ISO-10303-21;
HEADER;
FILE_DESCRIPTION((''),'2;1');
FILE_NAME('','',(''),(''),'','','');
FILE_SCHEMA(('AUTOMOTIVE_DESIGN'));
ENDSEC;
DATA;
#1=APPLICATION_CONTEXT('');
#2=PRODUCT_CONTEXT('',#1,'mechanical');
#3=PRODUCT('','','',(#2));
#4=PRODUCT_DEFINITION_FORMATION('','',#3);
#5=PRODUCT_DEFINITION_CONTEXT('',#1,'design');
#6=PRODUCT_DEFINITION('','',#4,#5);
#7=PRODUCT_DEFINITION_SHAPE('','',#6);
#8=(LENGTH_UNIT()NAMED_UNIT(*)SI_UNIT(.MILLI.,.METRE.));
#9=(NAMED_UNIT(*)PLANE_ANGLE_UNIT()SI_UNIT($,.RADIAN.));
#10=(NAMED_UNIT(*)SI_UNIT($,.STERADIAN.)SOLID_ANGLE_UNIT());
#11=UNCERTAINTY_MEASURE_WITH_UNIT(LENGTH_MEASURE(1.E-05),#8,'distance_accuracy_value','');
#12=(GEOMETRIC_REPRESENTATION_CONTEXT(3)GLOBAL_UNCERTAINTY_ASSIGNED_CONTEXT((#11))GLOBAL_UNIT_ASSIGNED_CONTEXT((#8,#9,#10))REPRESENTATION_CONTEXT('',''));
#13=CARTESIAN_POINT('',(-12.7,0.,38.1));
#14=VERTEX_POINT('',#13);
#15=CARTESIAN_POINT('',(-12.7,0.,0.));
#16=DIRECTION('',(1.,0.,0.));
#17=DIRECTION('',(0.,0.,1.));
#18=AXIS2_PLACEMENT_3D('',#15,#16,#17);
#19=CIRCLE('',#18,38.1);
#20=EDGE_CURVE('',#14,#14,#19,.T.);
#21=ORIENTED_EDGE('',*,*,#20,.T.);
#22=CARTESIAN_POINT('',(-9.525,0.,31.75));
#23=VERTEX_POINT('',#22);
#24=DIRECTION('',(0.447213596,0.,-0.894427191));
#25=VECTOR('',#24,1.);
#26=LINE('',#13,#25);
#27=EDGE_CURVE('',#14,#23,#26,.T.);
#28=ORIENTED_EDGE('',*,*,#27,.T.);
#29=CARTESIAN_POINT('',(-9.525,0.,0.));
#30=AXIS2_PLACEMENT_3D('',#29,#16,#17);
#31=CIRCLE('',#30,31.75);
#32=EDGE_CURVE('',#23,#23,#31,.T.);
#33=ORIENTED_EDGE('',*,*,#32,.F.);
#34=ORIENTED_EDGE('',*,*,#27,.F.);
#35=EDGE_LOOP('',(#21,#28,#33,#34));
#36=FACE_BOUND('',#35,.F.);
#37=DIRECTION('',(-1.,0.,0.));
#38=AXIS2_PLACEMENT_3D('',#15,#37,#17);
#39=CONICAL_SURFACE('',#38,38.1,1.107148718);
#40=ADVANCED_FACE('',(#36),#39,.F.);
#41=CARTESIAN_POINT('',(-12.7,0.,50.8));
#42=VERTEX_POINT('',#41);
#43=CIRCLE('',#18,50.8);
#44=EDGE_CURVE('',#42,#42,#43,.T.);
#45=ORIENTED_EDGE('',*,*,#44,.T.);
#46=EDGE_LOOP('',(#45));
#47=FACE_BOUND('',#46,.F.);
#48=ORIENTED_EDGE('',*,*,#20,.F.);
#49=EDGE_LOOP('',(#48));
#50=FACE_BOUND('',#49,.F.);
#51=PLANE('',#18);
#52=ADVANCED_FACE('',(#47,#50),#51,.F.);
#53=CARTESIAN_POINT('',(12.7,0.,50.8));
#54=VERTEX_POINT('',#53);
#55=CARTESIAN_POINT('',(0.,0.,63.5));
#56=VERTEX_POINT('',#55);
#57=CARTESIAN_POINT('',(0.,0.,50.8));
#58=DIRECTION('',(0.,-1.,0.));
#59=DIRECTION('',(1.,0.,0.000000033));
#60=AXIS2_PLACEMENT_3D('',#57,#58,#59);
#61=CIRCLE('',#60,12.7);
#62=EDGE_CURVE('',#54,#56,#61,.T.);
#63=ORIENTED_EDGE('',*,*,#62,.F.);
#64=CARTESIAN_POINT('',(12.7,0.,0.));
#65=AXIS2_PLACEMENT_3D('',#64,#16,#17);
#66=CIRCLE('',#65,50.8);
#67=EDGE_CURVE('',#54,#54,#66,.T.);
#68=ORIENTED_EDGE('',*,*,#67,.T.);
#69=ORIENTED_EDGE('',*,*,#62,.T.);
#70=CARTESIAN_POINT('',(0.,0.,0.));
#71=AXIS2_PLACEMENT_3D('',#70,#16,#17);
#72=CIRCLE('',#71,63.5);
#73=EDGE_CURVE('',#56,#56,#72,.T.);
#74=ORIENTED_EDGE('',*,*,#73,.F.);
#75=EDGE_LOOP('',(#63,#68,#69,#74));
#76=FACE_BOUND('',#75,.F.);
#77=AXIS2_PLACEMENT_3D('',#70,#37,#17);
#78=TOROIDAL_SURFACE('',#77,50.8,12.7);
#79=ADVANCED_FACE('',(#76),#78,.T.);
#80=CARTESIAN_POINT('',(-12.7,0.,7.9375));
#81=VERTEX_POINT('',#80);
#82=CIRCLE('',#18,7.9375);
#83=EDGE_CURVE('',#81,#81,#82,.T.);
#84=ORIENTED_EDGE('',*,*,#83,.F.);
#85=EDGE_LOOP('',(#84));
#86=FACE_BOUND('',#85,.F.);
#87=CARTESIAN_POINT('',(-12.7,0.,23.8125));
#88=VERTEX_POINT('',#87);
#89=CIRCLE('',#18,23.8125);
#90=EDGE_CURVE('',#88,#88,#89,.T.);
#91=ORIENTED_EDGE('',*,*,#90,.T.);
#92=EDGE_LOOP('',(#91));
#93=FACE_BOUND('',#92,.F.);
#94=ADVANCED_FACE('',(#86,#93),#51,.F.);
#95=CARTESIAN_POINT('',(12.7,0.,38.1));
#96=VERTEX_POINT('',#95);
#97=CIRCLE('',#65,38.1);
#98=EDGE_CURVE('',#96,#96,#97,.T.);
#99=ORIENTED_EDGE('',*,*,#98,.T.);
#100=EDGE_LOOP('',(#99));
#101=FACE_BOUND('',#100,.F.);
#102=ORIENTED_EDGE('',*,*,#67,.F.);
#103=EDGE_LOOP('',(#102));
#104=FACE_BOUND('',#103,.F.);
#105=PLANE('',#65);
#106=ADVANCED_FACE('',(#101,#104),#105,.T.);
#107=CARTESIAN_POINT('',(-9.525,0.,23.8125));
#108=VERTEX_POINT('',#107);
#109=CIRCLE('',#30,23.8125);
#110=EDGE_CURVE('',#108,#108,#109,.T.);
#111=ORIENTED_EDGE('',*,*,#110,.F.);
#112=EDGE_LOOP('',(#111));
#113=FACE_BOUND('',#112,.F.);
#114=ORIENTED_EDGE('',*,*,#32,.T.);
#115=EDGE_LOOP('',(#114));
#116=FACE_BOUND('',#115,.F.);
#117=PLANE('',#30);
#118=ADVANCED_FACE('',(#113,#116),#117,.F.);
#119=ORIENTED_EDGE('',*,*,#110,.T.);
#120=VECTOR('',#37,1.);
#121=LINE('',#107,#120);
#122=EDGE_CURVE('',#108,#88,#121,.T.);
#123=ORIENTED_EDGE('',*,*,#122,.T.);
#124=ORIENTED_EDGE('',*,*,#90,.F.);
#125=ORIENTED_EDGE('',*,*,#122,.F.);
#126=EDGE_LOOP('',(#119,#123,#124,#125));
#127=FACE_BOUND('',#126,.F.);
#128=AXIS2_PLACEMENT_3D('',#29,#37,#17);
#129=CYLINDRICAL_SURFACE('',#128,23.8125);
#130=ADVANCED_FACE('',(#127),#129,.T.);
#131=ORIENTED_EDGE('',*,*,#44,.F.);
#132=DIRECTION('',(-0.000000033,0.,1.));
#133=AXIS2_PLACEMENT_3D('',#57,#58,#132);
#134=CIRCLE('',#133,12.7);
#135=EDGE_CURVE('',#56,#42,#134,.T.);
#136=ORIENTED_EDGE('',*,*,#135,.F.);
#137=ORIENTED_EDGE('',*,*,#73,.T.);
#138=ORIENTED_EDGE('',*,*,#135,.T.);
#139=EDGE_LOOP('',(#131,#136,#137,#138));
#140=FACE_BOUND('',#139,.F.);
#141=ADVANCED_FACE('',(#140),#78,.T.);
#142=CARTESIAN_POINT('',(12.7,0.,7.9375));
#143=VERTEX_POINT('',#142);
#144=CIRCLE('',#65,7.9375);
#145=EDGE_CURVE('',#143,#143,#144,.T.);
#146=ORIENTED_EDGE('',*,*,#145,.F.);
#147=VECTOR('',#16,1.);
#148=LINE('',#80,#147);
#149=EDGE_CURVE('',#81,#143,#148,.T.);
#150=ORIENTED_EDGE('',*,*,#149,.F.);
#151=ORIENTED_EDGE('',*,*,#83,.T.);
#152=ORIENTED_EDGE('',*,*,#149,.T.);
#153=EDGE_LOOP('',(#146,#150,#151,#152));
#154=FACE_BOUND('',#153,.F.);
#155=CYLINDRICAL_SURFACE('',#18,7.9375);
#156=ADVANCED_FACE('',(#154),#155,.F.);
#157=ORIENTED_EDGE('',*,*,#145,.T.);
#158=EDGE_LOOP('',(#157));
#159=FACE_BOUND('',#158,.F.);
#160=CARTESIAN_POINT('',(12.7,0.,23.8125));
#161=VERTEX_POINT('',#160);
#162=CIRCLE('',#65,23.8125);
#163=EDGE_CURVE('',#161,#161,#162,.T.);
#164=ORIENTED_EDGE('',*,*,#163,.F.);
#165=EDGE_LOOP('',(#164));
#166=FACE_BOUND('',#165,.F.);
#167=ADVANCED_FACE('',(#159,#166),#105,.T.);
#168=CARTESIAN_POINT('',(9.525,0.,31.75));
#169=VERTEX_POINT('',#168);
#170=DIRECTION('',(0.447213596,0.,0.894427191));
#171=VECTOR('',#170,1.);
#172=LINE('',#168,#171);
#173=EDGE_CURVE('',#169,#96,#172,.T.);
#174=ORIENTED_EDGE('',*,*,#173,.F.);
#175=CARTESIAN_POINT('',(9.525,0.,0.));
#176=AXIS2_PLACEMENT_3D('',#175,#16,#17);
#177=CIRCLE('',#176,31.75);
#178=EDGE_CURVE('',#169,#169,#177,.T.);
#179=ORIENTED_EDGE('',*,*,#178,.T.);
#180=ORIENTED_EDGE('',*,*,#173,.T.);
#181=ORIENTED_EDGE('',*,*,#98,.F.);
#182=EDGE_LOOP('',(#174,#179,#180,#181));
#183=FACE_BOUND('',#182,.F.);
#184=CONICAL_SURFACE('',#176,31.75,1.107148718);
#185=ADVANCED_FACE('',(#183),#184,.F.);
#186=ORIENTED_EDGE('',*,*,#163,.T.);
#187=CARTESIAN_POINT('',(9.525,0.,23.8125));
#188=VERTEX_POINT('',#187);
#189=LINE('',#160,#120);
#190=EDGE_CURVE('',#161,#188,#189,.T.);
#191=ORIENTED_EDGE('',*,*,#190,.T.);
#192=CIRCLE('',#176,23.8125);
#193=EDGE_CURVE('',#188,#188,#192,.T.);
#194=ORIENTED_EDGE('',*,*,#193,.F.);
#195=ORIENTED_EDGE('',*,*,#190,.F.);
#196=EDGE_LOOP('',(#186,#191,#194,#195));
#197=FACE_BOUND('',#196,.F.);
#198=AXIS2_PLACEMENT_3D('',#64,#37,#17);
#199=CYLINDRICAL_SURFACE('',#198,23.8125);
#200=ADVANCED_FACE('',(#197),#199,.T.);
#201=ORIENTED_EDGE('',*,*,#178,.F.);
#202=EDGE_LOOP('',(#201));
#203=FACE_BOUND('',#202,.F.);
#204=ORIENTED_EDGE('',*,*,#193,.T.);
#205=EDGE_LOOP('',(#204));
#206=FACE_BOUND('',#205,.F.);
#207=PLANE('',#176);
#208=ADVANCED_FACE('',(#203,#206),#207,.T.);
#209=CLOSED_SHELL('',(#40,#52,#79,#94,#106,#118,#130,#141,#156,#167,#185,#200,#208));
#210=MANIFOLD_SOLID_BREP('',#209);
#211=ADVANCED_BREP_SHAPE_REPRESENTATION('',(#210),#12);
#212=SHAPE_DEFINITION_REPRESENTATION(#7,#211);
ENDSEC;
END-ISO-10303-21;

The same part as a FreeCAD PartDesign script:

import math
import FreeCAD as App
import Part
import Sketcher
Q = App.Units.Quantity

doc = App.newDocument("Part")
params = doc.addObject("Spreadsheet::Sheet", "Params")
for row, (alias, value) in enumerate([
    ("sketch1_radius", "0.5 in"),
    ("sketch1_height", "0.5 in"),
    ("sketch1_width", "0.125 in"),
    ("sketch1_height2", "0.625 in"),
    ("sketch1_height3", "0.3125 in"),
    ("revolution_angle", "360 deg"),
], start=1):
    params.set(f"A{row}", alias)
    params.set(f"B{row}", "=" + value)
    params.setAlias(f"B{row}", alias)

body = doc.addObject("PartDesign::Body", "Body")

# Sketch on XZ plane
sketch1 = body.newObject("Sketcher::SketchObject", "Sketch")
sketch1.AttachmentSupport = (doc.getObject("XZ_Plane"), [""])
sketch1.MapMode = "FlatFace"
sketch1.addGeometry([
    Part.LineSegment(App.Vector(-12.7, 7.9, 0), App.Vector(12.7, 7.9, 0)),  # 0
    Part.LineSegment(App.Vector(12.7, 7.9, 0), App.Vector(12.7, 23.8, 0)),  # 1
    Part.LineSegment(App.Vector(12.7, 23.8, 0), App.Vector(9.5, 23.8, 0)),  # 2
    Part.LineSegment(App.Vector(9.5, 23.8, 0), App.Vector(9.5, 31.8, 0)),  # 3
    Part.LineSegment(App.Vector(9.5, 31.8, 0), App.Vector(12.7, 38.1, 0)),  # 4
    Part.LineSegment(App.Vector(12.7, 38.1, 0), App.Vector(12.7, 50.8, 0)),  # 5
    Part.ArcOfCircle(Part.Circle(App.Vector(0, 50.8, 0), App.Vector(0, 0, 1), 12.7), math.radians(0), math.radians(90)),  # 6
    Part.ArcOfCircle(Part.Circle(App.Vector(0, 50.8, 0), App.Vector(0, 0, 1), 12.7), math.radians(90), math.radians(180)),  # 7
    Part.LineSegment(App.Vector(-12.7, 50.8, 0), App.Vector(-12.7, 38.1, 0)),  # 8
    Part.LineSegment(App.Vector(-12.7, 38.1, 0), App.Vector(-9.5, 31.8, 0)),  # 9
    Part.LineSegment(App.Vector(-9.5, 31.8, 0), App.Vector(-9.5, 23.8, 0)),  # 10
    Part.LineSegment(App.Vector(-9.5, 23.8, 0), App.Vector(-12.7, 23.8, 0)),  # 11
    Part.LineSegment(App.Vector(-12.7, 23.8, 0), App.Vector(-12.7, 7.9, 0)),  # 12
], False)
sketch1.addConstraint([
    Sketcher.Constraint("Coincident", 0, 2, 1, 1),
    Sketcher.Constraint("Coincident", 1, 2, 2, 1),
    Sketcher.Constraint("Coincident", 2, 2, 3, 1),
    Sketcher.Constraint("Coincident", 3, 2, 4, 1),
    Sketcher.Constraint("Coincident", 4, 2, 5, 1),
    Sketcher.Constraint("Tangent", 5, 2, 6, 1),
    Sketcher.Constraint("Tangent", 6, 2, 7, 1),
    Sketcher.Constraint("Tangent", 7, 2, 8, 1),
    Sketcher.Constraint("Coincident", 8, 2, 9, 1),
    Sketcher.Constraint("Coincident", 9, 2, 10, 1),
    Sketcher.Constraint("Coincident", 10, 2, 11, 1),
    Sketcher.Constraint("Coincident", 11, 2, 12, 1),
    Sketcher.Constraint("Coincident", 12, 2, 0, 1),
    Sketcher.Constraint("Horizontal", 0),
    Sketcher.Constraint("Vertical", 1),
    Sketcher.Constraint("Horizontal", 2),
    Sketcher.Constraint("Vertical", 3),
    Sketcher.Constraint("Vertical", 5),
    Sketcher.Constraint("Vertical", 8),
    Sketcher.Constraint("Vertical", 10),
    Sketcher.Constraint("Horizontal", 11),
    Sketcher.Constraint("Vertical", 12),
    Sketcher.Constraint("Equal", 6, 7),
    Sketcher.Constraint("Symmetric", 4, 2, 8, 2, -2),
    Sketcher.Constraint("Symmetric", 3, 2, 9, 2, -2),
    Sketcher.Constraint("Symmetric", 1, 2, 11, 2, -2),
    Sketcher.Constraint("PointOnObject", 6, 2, -2),
    Sketcher.Constraint("Vertical", 1, 2, 4, 2),
    Sketcher.Constraint("Radius", 6, Q("0.5 in")),
    Sketcher.Constraint("DistanceY", 5, 1, 5, 2, Q("0.5 in")),
    Sketcher.Constraint("DistanceY", -1, 1, 6, 3, Q("2 in")),
    Sketcher.Constraint("DistanceX", 2, 2, 2, 1, Q("0.125 in")),
    Sketcher.Constraint("DistanceY", 1, 1, 1, 2, Q("0.625 in")),
    Sketcher.Constraint("DistanceY", 3, 1, 3, 2, Q("0.3125 in")),
    Sketcher.Constraint("DistanceY", -1, 1, 3, 2, Q("1.25 in")),
])
sketch1.setExpression("Constraints[28]", "Params.sketch1_radius")
sketch1.setExpression("Constraints[29]", "Params.sketch1_height")
sketch1.setExpression("Constraints[31]", "Params.sketch1_width")
sketch1.setExpression("Constraints[32]", "Params.sketch1_height2")
sketch1.setExpression("Constraints[33]", "Params.sketch1_height3")
revolution = body.newObject("PartDesign::Revolution", "Revolution")
revolution.Profile = sketch1
revolution.ReferenceAxis = (sketch1, ["H_Axis"])
revolution.setExpression("Angle", "Params.revolution_angle")

doc.recompute()
